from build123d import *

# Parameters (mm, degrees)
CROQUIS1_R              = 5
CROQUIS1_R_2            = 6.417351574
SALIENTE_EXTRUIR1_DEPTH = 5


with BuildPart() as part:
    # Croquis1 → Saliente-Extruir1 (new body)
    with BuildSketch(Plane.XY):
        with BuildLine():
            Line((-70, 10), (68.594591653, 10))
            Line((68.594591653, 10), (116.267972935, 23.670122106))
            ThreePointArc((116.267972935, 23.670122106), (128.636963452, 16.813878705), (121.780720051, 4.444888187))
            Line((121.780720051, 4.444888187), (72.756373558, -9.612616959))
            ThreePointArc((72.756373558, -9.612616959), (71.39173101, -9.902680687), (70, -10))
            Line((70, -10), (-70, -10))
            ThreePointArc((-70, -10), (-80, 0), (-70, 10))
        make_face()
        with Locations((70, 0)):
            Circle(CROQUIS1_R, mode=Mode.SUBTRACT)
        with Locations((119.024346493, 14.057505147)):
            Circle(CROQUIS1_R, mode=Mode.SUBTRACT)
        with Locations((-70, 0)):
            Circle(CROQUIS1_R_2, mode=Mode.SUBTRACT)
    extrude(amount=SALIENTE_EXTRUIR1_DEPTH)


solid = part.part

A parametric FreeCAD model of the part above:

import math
import FreeCAD as App
import Part
import Sketcher

V = App.Vector
Q = App.Units.Quantity

doc = App.newDocument("Part")
params = doc.addObject("Spreadsheet::Sheet", "Params")
for row, (alias, value) in enumerate([
    ("sketch1_diameter", "10 mm"),
    ("sketch1_radius", "10 mm"),
    ("sketch1_width", "140 mm"),
    ("sketch1_length", "51 mm"),
    ("pad1_length", "5 mm"),
], start=1):
    params.set(f"A{row}", alias)
    params.set(f"B{row}", "=" + value)
    params.setAlias(f"B{row}", alias)

body = doc.addObject("PartDesign::Body", "Body")

# Sketch on XY plane
sketch1 = body.newObject("Sketcher::SketchObject", "Sketch")
sketch1.AttachmentSupport = (doc.getObject("XY_Plane"), [""])
sketch1.MapMode = "FlatFace"
sketch1.addGeometry([
    Part.LineSegment(V(68.6, 10, 0), V(-70, 10, 0)),  # 0
    Part.ArcOfCircle(Part.Circle(V(-70, 0, 0), V(0, 0, 1), 10), math.radians(90), math.radians(270)),  # 1
    Part.LineSegment(V(-70, -10, 0), V(70, -10, 0)),  # 2
    Part.ArcOfCircle(Part.Circle(V(70, 0, 0), V(0, 0, 1), 10), math.radians(-90), math.radians(-74)),  # 3
    Part.LineSegment(V(72.8, -9.6, 0), V(121.8, 4.4, 0)),  # 4
    Part.ArcOfCircle(Part.Circle(V(119, 14.1, 0), V(0, 0, 1), 10), math.radians(-74), math.radians(106)),  # 5
    Part.LineSegment(V(116.3, 23.7, 0), V(68.6, 10, 0)),  # 6
    Part.Circle(V(70, 0, 0), V(0, 0, 1), 5),  # 7
    Part.Circle(V(-70, 0, 0), V(0, 0, 1), 6.4),  # 8
    Part.Circle(V(119, 14.1, 0), V(0, 0, 1), 5),  # 9
], False)
sketch1.addConstraint([
    Sketcher.Constraint("Tangent", 0, 2, 1, 1),
    Sketcher.Constraint("Tangent", 1, 2, 2, 1),
    Sketcher.Constraint("Tangent", 2, 2, 3, 1),
    Sketcher.Constraint("Tangent", 3, 2, 4, 1),
    Sketcher.Constraint("Tangent", 4, 2, 5, 1),
    Sketcher.Constraint("Tangent", 5, 2, 6, 1),
    Sketcher.Constraint("Coincident", 6, 2, 0, 1),
    Sketcher.Constraint("Horizontal", 0),
    Sketcher.Constraint("Horizontal", 2),
    Sketcher.Constraint("Coincident", 7, 3, 3, 3),
    Sketcher.Constraint("Coincident", 8, 3, 1, 3),
    Sketcher.Constraint("Coincident", 9, 3, 5, 3),
    Sketcher.Constraint("Equal", 1, 3),
    Sketcher.Constraint("Equal", 3, 5),
    Sketcher.Constraint("Equal", 7, 9),
    Sketcher.Constraint("Symmetric", 1, 3, 3, 3, -1, 1),
    Sketcher.Constraint("Parallel", 4, 6),
    Sketcher.Constraint("Diameter", 7, 10.0),
    Sketcher.Constraint("Radius", 1, 10.0),
    Sketcher.Constraint("DistanceX", 2, 1, 2, 2, 140.0),
    Sketcher.Constraint("Angle", 4, Q("16 deg")),
    Sketcher.Constraint("Distance", 4, 51.0),
    Sketcher.Constraint("Diameter", 8, 12.834703),
])
sketch1.setExpression("Constraints[17]", "Params.sketch1_diameter")
sketch1.setExpression("Constraints[18]", "Params.sketch1_radius")
sketch1.setExpression("Constraints[19]", "Params.sketch1_width")
sketch1.setExpression("Constraints[21]", "Params.sketch1_length")
pad1 = body.newObject("PartDesign::Pad", "Pad")
pad1.Profile = sketch1
pad1.setExpression("Length", "Params.pad1_length")

doc.recompute()
